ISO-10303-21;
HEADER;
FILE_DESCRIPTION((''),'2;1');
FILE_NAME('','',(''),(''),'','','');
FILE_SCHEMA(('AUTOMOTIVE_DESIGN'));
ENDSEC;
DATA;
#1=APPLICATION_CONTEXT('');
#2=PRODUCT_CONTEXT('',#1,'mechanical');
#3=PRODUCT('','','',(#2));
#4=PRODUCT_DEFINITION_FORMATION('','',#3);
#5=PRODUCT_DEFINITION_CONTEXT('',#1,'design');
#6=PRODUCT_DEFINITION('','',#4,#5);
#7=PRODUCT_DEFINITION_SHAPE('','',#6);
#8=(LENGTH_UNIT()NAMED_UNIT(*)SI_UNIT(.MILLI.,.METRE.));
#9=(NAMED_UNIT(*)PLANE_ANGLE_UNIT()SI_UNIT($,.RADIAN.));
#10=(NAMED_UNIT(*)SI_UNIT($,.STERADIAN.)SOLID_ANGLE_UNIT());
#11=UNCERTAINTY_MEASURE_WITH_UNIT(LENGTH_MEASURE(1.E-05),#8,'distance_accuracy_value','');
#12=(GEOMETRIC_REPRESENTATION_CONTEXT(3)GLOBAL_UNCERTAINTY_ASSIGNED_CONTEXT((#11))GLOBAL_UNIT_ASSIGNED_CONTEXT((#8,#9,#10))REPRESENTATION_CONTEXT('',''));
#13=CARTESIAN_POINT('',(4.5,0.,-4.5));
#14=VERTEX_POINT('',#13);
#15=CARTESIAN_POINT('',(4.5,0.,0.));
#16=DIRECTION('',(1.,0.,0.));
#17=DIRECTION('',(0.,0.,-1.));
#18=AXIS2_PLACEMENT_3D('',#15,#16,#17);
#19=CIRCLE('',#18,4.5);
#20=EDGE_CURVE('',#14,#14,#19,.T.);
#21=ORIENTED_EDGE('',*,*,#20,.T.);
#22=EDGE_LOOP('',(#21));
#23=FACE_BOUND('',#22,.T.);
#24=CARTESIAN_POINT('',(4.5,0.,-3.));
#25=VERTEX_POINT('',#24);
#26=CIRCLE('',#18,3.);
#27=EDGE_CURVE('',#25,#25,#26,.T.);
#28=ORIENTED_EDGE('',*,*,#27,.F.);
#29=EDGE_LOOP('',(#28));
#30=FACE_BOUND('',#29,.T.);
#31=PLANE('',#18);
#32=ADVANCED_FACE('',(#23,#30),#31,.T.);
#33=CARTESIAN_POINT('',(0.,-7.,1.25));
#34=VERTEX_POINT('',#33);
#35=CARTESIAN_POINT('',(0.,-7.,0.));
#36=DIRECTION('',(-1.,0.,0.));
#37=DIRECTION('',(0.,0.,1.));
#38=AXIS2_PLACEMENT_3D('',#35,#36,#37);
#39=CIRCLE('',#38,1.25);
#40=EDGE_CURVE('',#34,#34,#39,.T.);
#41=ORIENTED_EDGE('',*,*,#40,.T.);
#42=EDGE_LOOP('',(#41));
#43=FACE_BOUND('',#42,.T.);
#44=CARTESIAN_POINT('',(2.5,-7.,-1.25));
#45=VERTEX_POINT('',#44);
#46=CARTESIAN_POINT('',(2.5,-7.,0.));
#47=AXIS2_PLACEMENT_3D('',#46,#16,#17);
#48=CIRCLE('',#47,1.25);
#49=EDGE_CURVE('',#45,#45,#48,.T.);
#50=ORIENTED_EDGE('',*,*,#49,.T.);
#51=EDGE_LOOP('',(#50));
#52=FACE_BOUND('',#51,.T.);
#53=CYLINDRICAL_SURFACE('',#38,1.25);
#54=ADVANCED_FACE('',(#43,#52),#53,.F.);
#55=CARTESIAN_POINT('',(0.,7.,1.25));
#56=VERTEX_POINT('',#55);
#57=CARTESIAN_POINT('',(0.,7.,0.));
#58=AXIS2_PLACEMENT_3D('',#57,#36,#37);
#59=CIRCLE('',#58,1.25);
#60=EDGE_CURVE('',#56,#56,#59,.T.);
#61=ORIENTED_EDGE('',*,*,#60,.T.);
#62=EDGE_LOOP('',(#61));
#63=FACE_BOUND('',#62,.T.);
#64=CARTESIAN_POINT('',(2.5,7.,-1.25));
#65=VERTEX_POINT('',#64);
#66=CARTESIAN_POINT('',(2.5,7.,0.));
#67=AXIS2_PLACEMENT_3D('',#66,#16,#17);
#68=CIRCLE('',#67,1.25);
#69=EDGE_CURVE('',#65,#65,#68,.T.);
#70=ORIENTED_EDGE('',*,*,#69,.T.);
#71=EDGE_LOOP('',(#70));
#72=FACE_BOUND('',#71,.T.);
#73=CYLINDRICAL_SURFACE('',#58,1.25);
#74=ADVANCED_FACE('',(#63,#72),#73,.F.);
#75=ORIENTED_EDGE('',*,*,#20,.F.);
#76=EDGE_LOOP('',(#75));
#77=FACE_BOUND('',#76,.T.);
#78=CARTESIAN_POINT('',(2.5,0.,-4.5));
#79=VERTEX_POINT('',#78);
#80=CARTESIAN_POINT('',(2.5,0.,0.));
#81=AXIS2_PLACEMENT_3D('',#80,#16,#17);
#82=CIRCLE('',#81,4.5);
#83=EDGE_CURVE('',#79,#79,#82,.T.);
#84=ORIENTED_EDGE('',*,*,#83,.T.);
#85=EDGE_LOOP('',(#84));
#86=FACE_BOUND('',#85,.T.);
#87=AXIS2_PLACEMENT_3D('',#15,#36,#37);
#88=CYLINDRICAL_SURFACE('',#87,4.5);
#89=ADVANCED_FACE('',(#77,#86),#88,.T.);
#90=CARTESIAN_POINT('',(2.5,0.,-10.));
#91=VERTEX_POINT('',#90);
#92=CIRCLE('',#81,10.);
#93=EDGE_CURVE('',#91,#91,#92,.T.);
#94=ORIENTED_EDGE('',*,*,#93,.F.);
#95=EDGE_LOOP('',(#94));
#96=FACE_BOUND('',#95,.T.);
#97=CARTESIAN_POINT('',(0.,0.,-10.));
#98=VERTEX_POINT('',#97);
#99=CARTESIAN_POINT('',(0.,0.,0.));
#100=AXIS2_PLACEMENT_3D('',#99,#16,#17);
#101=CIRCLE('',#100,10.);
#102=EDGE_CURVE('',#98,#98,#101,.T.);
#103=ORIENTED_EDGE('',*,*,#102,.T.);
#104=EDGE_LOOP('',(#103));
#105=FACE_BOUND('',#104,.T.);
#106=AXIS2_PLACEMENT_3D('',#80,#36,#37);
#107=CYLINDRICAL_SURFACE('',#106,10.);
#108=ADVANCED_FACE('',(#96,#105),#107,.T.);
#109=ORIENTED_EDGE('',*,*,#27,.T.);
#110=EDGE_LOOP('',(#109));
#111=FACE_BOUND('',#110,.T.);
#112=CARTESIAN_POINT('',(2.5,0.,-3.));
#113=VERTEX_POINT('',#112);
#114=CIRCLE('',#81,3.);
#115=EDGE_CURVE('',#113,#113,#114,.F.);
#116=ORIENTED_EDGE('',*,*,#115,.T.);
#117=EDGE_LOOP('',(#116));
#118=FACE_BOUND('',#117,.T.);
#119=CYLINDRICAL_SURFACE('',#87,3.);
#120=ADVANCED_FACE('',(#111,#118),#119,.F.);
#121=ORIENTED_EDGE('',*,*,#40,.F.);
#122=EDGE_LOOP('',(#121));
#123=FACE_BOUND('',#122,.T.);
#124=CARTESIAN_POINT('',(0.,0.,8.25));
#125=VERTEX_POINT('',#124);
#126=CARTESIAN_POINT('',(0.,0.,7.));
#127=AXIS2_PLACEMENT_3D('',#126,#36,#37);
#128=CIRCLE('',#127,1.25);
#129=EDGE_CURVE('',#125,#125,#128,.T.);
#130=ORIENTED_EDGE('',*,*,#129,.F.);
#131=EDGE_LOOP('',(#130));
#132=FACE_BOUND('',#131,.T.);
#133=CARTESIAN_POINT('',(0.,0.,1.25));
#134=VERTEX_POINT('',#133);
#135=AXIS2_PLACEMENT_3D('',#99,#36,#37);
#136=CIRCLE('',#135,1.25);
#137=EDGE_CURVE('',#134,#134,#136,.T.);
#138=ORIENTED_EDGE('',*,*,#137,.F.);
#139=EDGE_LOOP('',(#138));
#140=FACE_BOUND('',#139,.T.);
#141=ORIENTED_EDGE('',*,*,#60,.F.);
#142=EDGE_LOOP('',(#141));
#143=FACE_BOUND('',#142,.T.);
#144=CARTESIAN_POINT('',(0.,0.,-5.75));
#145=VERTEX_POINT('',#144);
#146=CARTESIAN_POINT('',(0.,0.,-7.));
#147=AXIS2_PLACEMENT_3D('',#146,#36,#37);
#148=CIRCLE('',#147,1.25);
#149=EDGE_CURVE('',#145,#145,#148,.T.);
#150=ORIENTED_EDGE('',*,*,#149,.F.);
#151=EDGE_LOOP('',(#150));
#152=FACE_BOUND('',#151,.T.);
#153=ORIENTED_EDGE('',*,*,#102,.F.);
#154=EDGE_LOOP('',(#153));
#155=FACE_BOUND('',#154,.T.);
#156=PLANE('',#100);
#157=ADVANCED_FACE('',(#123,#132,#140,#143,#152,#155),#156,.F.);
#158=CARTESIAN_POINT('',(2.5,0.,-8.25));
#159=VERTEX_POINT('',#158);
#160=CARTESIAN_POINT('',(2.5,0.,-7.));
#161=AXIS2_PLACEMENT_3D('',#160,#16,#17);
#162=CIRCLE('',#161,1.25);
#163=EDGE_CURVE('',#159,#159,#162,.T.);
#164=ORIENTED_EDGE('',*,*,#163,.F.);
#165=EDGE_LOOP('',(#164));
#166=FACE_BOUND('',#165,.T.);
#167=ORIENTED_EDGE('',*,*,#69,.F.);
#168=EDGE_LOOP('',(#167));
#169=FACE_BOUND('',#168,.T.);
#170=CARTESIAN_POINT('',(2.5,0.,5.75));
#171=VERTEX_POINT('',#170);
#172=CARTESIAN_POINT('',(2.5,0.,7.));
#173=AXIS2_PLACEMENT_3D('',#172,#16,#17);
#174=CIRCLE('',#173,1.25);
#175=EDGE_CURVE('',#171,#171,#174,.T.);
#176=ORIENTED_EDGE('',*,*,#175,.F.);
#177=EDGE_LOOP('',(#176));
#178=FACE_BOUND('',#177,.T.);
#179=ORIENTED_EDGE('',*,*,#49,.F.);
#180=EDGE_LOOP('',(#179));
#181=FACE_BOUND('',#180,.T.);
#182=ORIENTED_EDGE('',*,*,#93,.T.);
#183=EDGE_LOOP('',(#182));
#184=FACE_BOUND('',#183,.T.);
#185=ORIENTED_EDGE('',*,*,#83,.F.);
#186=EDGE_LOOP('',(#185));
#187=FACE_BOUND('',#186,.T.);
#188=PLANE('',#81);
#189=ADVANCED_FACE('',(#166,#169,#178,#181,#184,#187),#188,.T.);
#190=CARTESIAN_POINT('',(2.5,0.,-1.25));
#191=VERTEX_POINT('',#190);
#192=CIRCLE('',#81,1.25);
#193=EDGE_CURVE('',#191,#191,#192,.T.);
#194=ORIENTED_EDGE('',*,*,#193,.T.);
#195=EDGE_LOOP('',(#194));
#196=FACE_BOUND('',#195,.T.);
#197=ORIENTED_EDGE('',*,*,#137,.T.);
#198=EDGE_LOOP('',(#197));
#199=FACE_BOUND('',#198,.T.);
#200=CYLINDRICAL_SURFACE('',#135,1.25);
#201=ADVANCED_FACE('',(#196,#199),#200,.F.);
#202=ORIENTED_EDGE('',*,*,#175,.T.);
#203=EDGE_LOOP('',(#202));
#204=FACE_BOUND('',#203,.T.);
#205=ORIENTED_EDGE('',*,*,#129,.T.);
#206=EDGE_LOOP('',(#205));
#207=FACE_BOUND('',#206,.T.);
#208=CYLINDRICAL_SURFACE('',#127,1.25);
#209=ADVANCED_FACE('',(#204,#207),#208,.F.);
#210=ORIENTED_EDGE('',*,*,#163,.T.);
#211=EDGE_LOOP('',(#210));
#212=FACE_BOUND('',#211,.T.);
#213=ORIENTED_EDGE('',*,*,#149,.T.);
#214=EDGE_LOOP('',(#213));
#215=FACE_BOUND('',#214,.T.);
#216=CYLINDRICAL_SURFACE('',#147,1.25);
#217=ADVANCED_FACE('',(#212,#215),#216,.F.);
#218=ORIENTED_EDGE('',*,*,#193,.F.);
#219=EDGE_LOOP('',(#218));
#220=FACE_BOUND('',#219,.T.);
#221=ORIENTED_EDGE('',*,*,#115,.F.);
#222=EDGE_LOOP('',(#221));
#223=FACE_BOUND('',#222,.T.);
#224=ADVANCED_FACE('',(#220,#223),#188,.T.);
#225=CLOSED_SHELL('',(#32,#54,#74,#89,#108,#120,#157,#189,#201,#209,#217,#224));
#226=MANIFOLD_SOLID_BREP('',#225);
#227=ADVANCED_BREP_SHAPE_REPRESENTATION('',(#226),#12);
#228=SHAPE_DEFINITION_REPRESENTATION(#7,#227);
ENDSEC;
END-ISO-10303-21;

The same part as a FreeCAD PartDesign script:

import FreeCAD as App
import Part
import Sketcher
from FreeCAD import Vector
Q = App.Units.Quantity

doc = App.newDocument("Part")
body = doc.addObject("PartDesign::Body", "Body")

# Sketch on YZ plane
sketch1 = doc.addObject("Sketcher::SketchObject", "Sketch")
body.addObject(sketch1)
sketch1.AttachmentSupport = (doc.YZ_Plane, [""])
sketch1.MapMode = "FlatFace"
sketch1.addGeometry(Part.Circle(Vector(0, 0, 0), Vector(0, 0, 1), 10), False)
sketch1.addConstraint([
    Sketcher.Constraint("Coincident", 0, 3, -1, 1),
    Sketcher.Constraint("Diameter", 0, Q("20 mm")),
])
pad1 = doc.addObject("PartDesign::Pad", "Pad")
body.addObject(pad1)
pad1.Profile = sketch1
pad1.Length = 2.5

# Sketch on YZ plane
sketch2 = doc.addObject("Sketcher::SketchObject", "Sketch001")
body.addObject(sketch2)
sketch2.AttachmentSupport = (doc.YZ_Plane, [""])
sketch2.MapMode = "FlatFace"
sketch2.AttachmentOffset = App.Placement(Vector(0, 0, 2.5), App.Rotation())
sketch2.addGeometry([
    Part.Circle(Vector(0, 0, 0), Vector(0, 0, 1), 4.5),
    Part.Circle(Vector(0, 0, 0), Vector(0, 0, 1), 3),
], False)
sketch2.addConstraint([
    Sketcher.Constraint("Coincident", 0, 3, -1, 1),
    Sketcher.Constraint("Coincident", 1, 3, -1, 1),
    Sketcher.Constraint("Diameter", 0, Q("9 mm")),
    Sketcher.Constraint("Diameter", 1, Q("6 mm")),
])
pad2 = doc.addObject("PartDesign::Pad", "Pad001")
body.addObject(pad2)
pad2.Profile = sketch2
pad2.Length = 2

# Sketch on YZ plane
sketch3 = doc.addObject("Sketcher::SketchObject", "Sketch002")
body.addObject(sketch3)
sketch3.AttachmentSupport = (doc.YZ_Plane, [""])
sketch3.MapMode = "FlatFace"
sketch3.addGeometry([
    Part.Circle(Vector(0, 0, 0), Vector(0, 0, 1), 1.2),  # 0
    Part.Circle(Vector(7, 0, 0), Vector(0, 0, 1), 1.2),  # 1
    Part.Circle(Vector(0, -7, 0), Vector(0, 0, 1), 1.2),  # 2
    Part.Circle(Vector(0, 7, 0), Vector(0, 0, 1), 1.2),  # 3
    Part.Circle(Vector(-7, 0, 0), Vector(0, 0, 1), 1.2),  # 4
], False)
sketch3.addConstraint([
    Sketcher.Constraint("Coincident", 0, 3, -1, 1),
    Sketcher.Constraint("Equal", 0, 1),
    Sketcher.Constraint("Equal", 1, 2),
    Sketcher.Constraint("Equal", 2, 3),
    Sketcher.Constraint("Equal", 3, 4),
    Sketcher.Constraint("Symmetric", 2, 3, 3, 3, -1, 1),
    Sketcher.Constraint("Symmetric", 1, 3, 4, 3, -1, 1),
    Sketcher.Constraint("PointOnObject", 1, 3, -1),
    Sketcher.Constraint("PointOnObject", 2, 3, -2),
    Sketcher.Constraint("Diameter", 0, Q("2.5 mm")),
    Sketcher.Constraint("DistanceX", -1, 1, 1, 3, Q("7 mm")),
    Sketcher.Constraint("DistanceY", 2, 3, -1, 1, Q("7 mm")),
])
doc.recompute()
hole = doc.addObject("PartDesign::Hole", "Hole")
body.addObject(hole)
hole.Profile = sketch3
hole.ThreadType = "None"
hole.Diameter = 2.5
hole.DepthType = "ThroughAll"
hole.Reversed = True

doc.recompute()
